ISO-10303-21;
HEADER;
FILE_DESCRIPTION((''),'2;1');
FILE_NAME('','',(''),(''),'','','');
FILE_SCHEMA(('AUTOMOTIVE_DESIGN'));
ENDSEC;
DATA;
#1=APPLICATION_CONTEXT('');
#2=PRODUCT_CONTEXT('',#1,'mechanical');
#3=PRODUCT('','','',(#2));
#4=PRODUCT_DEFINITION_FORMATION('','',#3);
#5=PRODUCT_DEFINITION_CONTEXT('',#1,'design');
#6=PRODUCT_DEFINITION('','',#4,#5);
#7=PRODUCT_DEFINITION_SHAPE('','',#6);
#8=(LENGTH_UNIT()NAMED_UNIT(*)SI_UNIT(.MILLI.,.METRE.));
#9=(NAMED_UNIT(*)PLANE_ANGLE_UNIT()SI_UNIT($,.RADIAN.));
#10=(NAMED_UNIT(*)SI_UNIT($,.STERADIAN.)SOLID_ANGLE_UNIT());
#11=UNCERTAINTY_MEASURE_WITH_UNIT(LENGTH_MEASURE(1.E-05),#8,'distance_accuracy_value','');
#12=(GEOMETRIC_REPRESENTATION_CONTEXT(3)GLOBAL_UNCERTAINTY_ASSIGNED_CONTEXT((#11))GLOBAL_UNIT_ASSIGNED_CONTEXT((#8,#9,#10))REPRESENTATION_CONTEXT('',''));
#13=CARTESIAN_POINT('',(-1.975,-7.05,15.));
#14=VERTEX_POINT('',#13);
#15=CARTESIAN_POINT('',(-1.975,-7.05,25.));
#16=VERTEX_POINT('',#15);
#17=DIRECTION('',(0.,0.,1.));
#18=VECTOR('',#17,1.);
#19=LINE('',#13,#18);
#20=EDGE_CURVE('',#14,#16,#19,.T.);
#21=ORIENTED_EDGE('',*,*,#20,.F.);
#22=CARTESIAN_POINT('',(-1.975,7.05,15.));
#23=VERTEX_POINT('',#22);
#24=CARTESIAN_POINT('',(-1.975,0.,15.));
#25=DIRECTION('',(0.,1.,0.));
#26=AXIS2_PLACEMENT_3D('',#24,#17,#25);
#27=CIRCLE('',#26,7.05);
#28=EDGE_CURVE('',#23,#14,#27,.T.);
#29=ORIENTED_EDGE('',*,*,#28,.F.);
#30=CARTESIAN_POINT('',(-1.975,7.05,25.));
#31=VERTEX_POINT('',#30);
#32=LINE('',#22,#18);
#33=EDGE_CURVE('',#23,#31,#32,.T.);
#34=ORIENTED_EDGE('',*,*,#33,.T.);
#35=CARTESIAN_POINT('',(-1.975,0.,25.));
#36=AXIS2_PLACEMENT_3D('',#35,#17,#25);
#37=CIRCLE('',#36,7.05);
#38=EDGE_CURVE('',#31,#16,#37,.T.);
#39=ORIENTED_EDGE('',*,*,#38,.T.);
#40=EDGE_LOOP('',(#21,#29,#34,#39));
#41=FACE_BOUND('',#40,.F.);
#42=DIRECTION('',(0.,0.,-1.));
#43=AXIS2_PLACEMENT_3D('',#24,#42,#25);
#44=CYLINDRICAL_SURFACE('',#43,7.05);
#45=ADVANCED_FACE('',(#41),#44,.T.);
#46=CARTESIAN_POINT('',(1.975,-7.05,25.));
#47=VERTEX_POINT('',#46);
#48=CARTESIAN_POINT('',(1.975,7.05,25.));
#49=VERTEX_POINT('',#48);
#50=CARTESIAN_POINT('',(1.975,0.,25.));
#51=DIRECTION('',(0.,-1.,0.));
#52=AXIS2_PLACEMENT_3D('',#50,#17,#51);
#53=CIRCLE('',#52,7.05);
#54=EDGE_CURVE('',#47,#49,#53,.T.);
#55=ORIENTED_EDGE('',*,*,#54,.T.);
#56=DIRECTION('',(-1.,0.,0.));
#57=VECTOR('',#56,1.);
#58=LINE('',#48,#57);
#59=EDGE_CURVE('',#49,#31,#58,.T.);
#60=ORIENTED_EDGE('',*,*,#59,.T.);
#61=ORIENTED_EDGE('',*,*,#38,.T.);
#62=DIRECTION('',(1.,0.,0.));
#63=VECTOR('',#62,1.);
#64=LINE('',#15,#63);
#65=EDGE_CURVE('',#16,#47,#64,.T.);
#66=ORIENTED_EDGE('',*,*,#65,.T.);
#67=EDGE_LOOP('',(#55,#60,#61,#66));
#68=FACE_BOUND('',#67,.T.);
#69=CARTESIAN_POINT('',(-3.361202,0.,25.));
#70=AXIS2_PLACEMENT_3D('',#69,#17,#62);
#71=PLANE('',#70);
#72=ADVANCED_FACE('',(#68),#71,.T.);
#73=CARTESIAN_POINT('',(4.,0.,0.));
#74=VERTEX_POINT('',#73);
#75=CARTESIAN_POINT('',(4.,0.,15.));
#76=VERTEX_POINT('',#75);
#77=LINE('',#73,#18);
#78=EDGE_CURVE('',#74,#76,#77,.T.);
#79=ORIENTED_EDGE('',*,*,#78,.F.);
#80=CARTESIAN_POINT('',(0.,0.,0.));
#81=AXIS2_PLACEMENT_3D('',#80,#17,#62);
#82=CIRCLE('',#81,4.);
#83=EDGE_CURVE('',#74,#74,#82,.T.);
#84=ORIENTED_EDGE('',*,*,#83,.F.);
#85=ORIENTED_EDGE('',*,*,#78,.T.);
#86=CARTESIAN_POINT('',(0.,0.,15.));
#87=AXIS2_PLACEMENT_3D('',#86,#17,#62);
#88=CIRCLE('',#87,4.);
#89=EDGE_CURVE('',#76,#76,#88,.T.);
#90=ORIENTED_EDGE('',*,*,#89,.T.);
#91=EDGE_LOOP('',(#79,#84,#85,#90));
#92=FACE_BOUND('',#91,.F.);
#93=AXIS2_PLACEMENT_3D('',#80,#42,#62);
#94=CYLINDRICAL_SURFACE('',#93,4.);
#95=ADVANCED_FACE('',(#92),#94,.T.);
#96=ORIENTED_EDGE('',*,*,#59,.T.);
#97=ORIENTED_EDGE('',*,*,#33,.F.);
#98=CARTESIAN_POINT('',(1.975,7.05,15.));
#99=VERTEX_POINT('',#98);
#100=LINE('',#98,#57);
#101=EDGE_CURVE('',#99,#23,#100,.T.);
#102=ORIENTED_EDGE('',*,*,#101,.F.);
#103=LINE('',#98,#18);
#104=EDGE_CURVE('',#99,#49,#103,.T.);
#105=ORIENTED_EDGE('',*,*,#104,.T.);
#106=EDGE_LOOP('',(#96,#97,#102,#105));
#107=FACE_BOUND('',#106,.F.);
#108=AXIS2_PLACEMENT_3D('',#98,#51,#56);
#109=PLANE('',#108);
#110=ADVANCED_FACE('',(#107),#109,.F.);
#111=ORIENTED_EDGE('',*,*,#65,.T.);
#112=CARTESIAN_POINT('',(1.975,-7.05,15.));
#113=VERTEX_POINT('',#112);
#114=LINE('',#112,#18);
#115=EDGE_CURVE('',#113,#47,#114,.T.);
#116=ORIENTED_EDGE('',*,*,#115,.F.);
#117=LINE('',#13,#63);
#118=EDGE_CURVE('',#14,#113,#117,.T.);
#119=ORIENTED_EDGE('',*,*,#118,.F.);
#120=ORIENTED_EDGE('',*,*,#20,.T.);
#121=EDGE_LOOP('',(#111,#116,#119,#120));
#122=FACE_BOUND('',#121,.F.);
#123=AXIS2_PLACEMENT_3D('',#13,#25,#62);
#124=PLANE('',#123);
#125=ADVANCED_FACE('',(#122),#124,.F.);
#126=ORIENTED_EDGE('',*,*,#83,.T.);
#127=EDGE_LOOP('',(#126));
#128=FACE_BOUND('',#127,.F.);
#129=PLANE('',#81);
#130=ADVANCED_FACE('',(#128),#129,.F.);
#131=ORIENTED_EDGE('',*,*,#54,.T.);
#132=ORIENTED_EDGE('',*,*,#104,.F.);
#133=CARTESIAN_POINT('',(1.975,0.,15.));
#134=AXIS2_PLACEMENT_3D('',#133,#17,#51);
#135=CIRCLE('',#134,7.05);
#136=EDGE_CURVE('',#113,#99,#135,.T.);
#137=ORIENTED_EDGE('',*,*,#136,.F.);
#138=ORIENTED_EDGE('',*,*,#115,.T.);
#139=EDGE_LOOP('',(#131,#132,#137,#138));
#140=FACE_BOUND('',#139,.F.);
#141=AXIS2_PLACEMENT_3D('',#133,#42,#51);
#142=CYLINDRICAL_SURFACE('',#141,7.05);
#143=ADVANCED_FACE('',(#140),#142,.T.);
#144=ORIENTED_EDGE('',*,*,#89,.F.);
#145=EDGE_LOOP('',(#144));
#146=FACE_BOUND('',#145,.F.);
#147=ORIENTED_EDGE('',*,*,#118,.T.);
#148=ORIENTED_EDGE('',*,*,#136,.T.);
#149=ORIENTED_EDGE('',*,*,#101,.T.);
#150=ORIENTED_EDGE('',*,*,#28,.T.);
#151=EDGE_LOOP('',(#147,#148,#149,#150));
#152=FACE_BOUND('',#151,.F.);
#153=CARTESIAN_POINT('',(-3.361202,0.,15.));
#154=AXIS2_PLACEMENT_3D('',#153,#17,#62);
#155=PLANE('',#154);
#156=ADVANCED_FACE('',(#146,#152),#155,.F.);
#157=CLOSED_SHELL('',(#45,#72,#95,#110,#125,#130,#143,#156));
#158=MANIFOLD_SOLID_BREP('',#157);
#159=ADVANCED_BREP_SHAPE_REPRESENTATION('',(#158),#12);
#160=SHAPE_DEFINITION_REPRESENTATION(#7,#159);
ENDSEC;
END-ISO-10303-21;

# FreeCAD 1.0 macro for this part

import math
import FreeCAD as App
import Part
import Sketcher
Q = App.Units.Quantity

doc = App.newDocument("Part")
body = doc.addObject("PartDesign::Body", "Body")

# Sketch on XY plane
sketch1 = body.newObject("Sketcher::SketchObject", "Sketch")
sketch1.AttachmentSupport = (doc.getObject("XY_Plane"), [""])
sketch1.MapMode = "FlatFace"
sketch1.addGeometry(Part.Circle(App.Vector(0, 0, 0), App.Vector(0, 0, 1), 4), False)
sketch1.addConstraint([
    Sketcher.Constraint("Coincident", 0, 3, -1, 1),
    Sketcher.Constraint("Diameter", 0, Q("8 mm")),
])
pad1 = body.newObject("PartDesign::Pad", "Pad")
pad1.Profile = sketch1
pad1.Length = 15

# Sketch on XY plane
sketch2 = body.newObject("Sketcher::SketchObject", "Sketch001")
sketch2.AttachmentSupport = (doc.getObject("XY_Plane"), [""])
sketch2.MapMode = "FlatFace"
sketch2.AttachmentOffset = App.Placement(App.Vector(0, 0, 15), App.Rotation())
sketch2.addGeometry([
    Part.ArcOfCircle(Part.Circle(App.Vector(-2, 0, 0), App.Vector(0, 0, 1), 7), math.radians(90), math.radians(270)),
    Part.LineSegment(App.Vector(-2, -7, 0), App.Vector(2, -7, 0)),
    Part.ArcOfCircle(Part.Circle(App.Vector(2, 0, 0), App.Vector(0, 0, 1), 7), math.radians(-90), math.radians(90)),
    Part.LineSegment(App.Vector(2, 7, 0), App.Vector(-2, 7, 0)),
], False)
sketch2.addConstraint([
    Sketcher.Constraint("Tangent", 0, 2, 1, 1),
    Sketcher.Constraint("Tangent", 1, 2, 2, 1),
    Sketcher.Constraint("Tangent", 2, 2, 3, 1),
    Sketcher.Constraint("Tangent", 3, 2, 0, 1),
    Sketcher.Constraint("Horizontal", 1),
    Sketcher.Constraint("Horizontal", 3),
    Sketcher.Constraint("Symmetric", 0, 3, 2, 3, -1, 1),
    Sketcher.Constraint("Radius", 0, Q("7.05 mm")),
    Sketcher.Constraint("DistanceX", 1, 1, 1, 2, Q("3.95 mm")),
])
pad2 = body.newObject("PartDesign::Pad", "Pad001")
pad2.Profile = sketch2
pad2.Length = 10

doc.recompute()
